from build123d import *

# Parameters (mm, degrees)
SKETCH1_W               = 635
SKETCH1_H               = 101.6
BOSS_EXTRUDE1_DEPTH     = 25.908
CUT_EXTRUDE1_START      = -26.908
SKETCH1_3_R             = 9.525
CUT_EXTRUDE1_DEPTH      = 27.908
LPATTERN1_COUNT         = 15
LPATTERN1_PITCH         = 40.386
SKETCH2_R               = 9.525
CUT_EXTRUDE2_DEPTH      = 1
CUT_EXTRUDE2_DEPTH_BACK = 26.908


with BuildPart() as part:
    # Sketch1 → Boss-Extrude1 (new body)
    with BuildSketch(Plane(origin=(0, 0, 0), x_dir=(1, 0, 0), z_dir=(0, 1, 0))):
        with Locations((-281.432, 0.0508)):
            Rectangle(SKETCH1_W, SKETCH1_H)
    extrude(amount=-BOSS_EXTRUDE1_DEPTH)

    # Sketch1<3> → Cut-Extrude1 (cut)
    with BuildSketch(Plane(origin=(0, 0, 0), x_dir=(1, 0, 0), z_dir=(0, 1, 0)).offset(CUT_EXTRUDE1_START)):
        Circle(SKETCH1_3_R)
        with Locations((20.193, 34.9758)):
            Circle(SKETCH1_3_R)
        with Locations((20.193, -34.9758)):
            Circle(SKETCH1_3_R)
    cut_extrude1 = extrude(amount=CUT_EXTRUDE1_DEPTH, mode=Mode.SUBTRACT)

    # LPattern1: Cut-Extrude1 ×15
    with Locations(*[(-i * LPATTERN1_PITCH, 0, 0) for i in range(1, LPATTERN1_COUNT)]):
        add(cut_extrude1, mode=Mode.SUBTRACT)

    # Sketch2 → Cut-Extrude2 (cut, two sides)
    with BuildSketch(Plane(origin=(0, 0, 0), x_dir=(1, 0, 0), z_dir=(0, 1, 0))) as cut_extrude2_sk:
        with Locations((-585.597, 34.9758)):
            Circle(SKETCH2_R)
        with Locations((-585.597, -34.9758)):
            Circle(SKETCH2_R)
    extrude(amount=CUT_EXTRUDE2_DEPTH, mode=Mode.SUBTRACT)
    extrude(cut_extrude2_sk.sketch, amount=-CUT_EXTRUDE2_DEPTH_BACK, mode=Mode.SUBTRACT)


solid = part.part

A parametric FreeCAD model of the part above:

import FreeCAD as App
import Part
import Sketcher

V = App.Vector
Q = App.Units.Quantity

doc = App.newDocument("Part")
body = doc.addObject("PartDesign::Body", "Body")

sketch1 = doc.addObject("Sketcher::SketchObject", "Sketch")
body.addObject(sketch1)
sketch1.AttachmentSupport = (doc.XZ_Plane, [""])
sketch1.MapMode = "FlatFace"
sketch1.addGeometry([
    Part.LineSegment(V(-599, -51, 0), V(-599, 51, 0)),
    Part.LineSegment(V(-599, 51, 0), V(36, 51, 0)),
    Part.LineSegment(V(36, 51, 0), V(36, -51, 0)),
    Part.LineSegment(V(36, -51, 0), V(-599, -51, 0)),
], False)
sketch1.addConstraint([
    Sketcher.Constraint("Coincident", 0, 2, 1, 1),
    Sketcher.Constraint("Coincident", 1, 2, 2, 1),
    Sketcher.Constraint("Coincident", 2, 2, 3, 1),
    Sketcher.Constraint("Coincident", 3, 2, 0, 1),
    Sketcher.Constraint("Vertical", 0),
    Sketcher.Constraint("Horizontal", 1),
    Sketcher.Constraint("Vertical", 2),
    Sketcher.Constraint("Horizontal", 3),
    Sketcher.Constraint("DistanceX", 1, 1, 1, 2, Q("25 in")),
    Sketcher.Constraint("DistanceY", 0, 1, 0, 2, Q("4 in")),
    Sketcher.Constraint("DistanceX", 0, 2, -1, 1, Q("23.58 in")),
    Sketcher.Constraint("DistanceY", -1, 1, 0, 2, Q("1.998 in")),
])
pad1 = doc.addObject("PartDesign::Pad", "Pad")
body.addObject(pad1)
pad1.Profile = sketch1
pad1.Length = Q("1.02 in")

sketch2 = doc.addObject("Sketcher::SketchObject", "Sketch001")
body.addObject(sketch2)
sketch2.AttachmentSupport = (doc.XZ_Plane, [""])
sketch2.MapMode = "FlatFace"
sketch2.AttachmentOffset = App.Placement(V(0, 0, 26.908), App.Rotation())
sketch2.addGeometry([
    Part.Circle(V(0, 0, 0), V(0, 0, 1), 10),
    Part.Circle(V(20, -35, 0), V(0, 0, 1), 10),
    Part.Circle(V(20, 35, 0), V(0, 0, 1), 10),
], False)
sketch2.addConstraint([
    Sketcher.Constraint("Coincident", 0, 3, -1, 1),
    Sketcher.Constraint("Equal", 0, 1),
    Sketcher.Constraint("Equal", 1, 2),
    Sketcher.Constraint("Symmetric", 1, 3, 2, 3, -1),
    Sketcher.Constraint("Diameter", 0, Q("0.75 in")),
    Sketcher.Constraint("DistanceX", -1, 1, 1, 3, Q("0.795 in")),
    Sketcher.Constraint("DistanceY", 1, 3, -1, 1, Q("1.377 in")),
])
pocket1 = doc.addObject("PartDesign::Pocket", "Pocket")
body.addObject(pocket1)
pocket1.Profile = sketch2
pocket1.Length = 27.908
doc.recompute()

linearpattern = doc.addObject("PartDesign::LinearPattern", "LinearPattern")
body.addObject(linearpattern)
linearpattern.Originals = [pocket1]
linearpattern.Direction = (doc.X_Axis, [""])
linearpattern.Mode = "offset"
linearpattern.Offset = Q("1.59 in")
linearpattern.Occurrences = 15
linearpattern.Reversed = True
body.Tip = linearpattern

sketch3 = doc.addObject("Sketcher::SketchObject", "Sketch002")
body.addObject(sketch3)
sketch3.AttachmentSupport = (doc.XZ_Plane, [""])
sketch3.MapMode = "FlatFace"
sketch3.addGeometry([
    Part.Circle(V(-586, -35, 0), V(0, 0, 1), 10),
    Part.Circle(V(-586, 35, 0), V(0, 0, 1), 10),
], False)
sketch3.addConstraint([
    Sketcher.Constraint("Equal", 0, 1),
    Sketcher.Constraint("Symmetric", 0, 3, 1, 3, -1),
    Sketcher.Constraint("Diameter", 0, Q("0.75 in")),
    Sketcher.Constraint("DistanceX", 0, 3, -1, 1, Q("23.055 in")),
    Sketcher.Constraint("DistanceY", 0, 3, -1, 1, Q("1.377 in")),
])
pocket2 = doc.addObject("PartDesign::Pocket", "Pocket001")
body.addObject(pocket2)
pocket2.Profile = sketch3
pocket2.Type = "ThroughAll"
pocket2.Midplane = True

doc.recompute()
